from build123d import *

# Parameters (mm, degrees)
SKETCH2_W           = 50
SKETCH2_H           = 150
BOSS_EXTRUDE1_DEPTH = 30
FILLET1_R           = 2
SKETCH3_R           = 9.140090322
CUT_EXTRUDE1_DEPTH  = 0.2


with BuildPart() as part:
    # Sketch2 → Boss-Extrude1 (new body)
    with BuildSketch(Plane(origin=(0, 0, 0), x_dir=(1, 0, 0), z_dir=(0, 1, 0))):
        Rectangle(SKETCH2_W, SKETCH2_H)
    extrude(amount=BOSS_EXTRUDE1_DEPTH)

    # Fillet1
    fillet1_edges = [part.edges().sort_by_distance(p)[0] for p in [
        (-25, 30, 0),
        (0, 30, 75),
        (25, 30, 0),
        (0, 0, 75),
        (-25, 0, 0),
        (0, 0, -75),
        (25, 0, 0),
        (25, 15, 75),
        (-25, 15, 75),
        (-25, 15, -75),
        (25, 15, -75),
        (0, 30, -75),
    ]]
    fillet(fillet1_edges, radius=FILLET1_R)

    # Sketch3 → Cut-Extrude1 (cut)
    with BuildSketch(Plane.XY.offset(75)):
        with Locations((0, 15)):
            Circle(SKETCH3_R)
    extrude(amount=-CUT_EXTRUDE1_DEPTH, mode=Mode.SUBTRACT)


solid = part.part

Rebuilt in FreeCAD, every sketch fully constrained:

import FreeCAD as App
import Part
import Sketcher
from FreeCAD import Vector
Q = App.Units.Quantity

doc = App.newDocument("Part")
body = doc.addObject("PartDesign::Body", "Body")

# Sketch on XZ plane
sketch1 = body.newObject("Sketcher::SketchObject", "Sketch")
sketch1.AttachmentSupport = (doc.getObject("XZ_Plane"), [""])
sketch1.MapMode = "FlatFace"
sketch1.addGeometry(Part.LineSegment(Vector(-25, -75, 0), Vector(-25, 75, 0)), False)
sketch1.addGeometry(Part.LineSegment(Vector(-25, 75, 0), Vector(25, 75, 0)), False)
sketch1.addGeometry(Part.LineSegment(Vector(25, 75, 0), Vector(25, -75, 0)), False)
sketch1.addGeometry(Part.LineSegment(Vector(25, -75, 0), Vector(-25, -75, 0)), False)
sketch1.addConstraint(Sketcher.Constraint("Coincident", 0, 2, 1, 1))
sketch1.addConstraint(Sketcher.Constraint("Coincident", 1, 2, 2, 1))
sketch1.addConstraint(Sketcher.Constraint("Coincident", 2, 2, 3, 1))
sketch1.addConstraint(Sketcher.Constraint("Coincident", 3, 2, 0, 1))
sketch1.addConstraint(Sketcher.Constraint("Vertical", 0))
sketch1.addConstraint(Sketcher.Constraint("Horizontal", 1))
sketch1.addConstraint(Sketcher.Constraint("Vertical", 2))
sketch1.addConstraint(Sketcher.Constraint("Horizontal", 3))
sketch1.addConstraint(Sketcher.Constraint("Symmetric", 0, 2, 2, 2, -1, 1))
sketch1.addConstraint(Sketcher.Constraint("DistanceX", 1, 1, 1, 2, Q("50 mm")))
sketch1.addConstraint(Sketcher.Constraint("DistanceY", 0, 1, 0, 2, Q("150 mm")))
pad1 = body.newObject("PartDesign::Pad", "Pad")
pad1.Profile = sketch1
pad1.Length = 30
pad1.Reversed = True
doc.recompute()

fillet = body.newObject("PartDesign::Fillet", "Fillet")
fillet.Base = (pad1, ["Edge1"])
fillet.UseAllEdges = True
fillet.Radius = 2

# Sketch on XY plane
sketch2 = body.newObject("Sketcher::SketchObject", "Sketch001")
sketch2.AttachmentSupport = (doc.getObject("XY_Plane"), [""])
sketch2.MapMode = "FlatFace"
sketch2.AttachmentOffset = App.Placement(Vector(0, 0, 75), App.Rotation())
sketch2.addGeometry(Part.Circle(Vector(0, 15, 0), Vector(0, 0, 1), 9), False)
sketch2.addConstraint(Sketcher.Constraint("PointOnObject", 0, 3, -2))
sketch2.addConstraint(Sketcher.Constraint("DistanceY", -1, 1, 0, 3, Q("15 mm")))
sketch2.addConstraint(Sketcher.Constraint("Diameter", 0, Q("18.280181 mm")))
pocket1 = body.newObject("PartDesign::Pocket", "Pocket")
pocket1.Profile = sketch2
pocket1.Length = 0.2

doc.recompute()
